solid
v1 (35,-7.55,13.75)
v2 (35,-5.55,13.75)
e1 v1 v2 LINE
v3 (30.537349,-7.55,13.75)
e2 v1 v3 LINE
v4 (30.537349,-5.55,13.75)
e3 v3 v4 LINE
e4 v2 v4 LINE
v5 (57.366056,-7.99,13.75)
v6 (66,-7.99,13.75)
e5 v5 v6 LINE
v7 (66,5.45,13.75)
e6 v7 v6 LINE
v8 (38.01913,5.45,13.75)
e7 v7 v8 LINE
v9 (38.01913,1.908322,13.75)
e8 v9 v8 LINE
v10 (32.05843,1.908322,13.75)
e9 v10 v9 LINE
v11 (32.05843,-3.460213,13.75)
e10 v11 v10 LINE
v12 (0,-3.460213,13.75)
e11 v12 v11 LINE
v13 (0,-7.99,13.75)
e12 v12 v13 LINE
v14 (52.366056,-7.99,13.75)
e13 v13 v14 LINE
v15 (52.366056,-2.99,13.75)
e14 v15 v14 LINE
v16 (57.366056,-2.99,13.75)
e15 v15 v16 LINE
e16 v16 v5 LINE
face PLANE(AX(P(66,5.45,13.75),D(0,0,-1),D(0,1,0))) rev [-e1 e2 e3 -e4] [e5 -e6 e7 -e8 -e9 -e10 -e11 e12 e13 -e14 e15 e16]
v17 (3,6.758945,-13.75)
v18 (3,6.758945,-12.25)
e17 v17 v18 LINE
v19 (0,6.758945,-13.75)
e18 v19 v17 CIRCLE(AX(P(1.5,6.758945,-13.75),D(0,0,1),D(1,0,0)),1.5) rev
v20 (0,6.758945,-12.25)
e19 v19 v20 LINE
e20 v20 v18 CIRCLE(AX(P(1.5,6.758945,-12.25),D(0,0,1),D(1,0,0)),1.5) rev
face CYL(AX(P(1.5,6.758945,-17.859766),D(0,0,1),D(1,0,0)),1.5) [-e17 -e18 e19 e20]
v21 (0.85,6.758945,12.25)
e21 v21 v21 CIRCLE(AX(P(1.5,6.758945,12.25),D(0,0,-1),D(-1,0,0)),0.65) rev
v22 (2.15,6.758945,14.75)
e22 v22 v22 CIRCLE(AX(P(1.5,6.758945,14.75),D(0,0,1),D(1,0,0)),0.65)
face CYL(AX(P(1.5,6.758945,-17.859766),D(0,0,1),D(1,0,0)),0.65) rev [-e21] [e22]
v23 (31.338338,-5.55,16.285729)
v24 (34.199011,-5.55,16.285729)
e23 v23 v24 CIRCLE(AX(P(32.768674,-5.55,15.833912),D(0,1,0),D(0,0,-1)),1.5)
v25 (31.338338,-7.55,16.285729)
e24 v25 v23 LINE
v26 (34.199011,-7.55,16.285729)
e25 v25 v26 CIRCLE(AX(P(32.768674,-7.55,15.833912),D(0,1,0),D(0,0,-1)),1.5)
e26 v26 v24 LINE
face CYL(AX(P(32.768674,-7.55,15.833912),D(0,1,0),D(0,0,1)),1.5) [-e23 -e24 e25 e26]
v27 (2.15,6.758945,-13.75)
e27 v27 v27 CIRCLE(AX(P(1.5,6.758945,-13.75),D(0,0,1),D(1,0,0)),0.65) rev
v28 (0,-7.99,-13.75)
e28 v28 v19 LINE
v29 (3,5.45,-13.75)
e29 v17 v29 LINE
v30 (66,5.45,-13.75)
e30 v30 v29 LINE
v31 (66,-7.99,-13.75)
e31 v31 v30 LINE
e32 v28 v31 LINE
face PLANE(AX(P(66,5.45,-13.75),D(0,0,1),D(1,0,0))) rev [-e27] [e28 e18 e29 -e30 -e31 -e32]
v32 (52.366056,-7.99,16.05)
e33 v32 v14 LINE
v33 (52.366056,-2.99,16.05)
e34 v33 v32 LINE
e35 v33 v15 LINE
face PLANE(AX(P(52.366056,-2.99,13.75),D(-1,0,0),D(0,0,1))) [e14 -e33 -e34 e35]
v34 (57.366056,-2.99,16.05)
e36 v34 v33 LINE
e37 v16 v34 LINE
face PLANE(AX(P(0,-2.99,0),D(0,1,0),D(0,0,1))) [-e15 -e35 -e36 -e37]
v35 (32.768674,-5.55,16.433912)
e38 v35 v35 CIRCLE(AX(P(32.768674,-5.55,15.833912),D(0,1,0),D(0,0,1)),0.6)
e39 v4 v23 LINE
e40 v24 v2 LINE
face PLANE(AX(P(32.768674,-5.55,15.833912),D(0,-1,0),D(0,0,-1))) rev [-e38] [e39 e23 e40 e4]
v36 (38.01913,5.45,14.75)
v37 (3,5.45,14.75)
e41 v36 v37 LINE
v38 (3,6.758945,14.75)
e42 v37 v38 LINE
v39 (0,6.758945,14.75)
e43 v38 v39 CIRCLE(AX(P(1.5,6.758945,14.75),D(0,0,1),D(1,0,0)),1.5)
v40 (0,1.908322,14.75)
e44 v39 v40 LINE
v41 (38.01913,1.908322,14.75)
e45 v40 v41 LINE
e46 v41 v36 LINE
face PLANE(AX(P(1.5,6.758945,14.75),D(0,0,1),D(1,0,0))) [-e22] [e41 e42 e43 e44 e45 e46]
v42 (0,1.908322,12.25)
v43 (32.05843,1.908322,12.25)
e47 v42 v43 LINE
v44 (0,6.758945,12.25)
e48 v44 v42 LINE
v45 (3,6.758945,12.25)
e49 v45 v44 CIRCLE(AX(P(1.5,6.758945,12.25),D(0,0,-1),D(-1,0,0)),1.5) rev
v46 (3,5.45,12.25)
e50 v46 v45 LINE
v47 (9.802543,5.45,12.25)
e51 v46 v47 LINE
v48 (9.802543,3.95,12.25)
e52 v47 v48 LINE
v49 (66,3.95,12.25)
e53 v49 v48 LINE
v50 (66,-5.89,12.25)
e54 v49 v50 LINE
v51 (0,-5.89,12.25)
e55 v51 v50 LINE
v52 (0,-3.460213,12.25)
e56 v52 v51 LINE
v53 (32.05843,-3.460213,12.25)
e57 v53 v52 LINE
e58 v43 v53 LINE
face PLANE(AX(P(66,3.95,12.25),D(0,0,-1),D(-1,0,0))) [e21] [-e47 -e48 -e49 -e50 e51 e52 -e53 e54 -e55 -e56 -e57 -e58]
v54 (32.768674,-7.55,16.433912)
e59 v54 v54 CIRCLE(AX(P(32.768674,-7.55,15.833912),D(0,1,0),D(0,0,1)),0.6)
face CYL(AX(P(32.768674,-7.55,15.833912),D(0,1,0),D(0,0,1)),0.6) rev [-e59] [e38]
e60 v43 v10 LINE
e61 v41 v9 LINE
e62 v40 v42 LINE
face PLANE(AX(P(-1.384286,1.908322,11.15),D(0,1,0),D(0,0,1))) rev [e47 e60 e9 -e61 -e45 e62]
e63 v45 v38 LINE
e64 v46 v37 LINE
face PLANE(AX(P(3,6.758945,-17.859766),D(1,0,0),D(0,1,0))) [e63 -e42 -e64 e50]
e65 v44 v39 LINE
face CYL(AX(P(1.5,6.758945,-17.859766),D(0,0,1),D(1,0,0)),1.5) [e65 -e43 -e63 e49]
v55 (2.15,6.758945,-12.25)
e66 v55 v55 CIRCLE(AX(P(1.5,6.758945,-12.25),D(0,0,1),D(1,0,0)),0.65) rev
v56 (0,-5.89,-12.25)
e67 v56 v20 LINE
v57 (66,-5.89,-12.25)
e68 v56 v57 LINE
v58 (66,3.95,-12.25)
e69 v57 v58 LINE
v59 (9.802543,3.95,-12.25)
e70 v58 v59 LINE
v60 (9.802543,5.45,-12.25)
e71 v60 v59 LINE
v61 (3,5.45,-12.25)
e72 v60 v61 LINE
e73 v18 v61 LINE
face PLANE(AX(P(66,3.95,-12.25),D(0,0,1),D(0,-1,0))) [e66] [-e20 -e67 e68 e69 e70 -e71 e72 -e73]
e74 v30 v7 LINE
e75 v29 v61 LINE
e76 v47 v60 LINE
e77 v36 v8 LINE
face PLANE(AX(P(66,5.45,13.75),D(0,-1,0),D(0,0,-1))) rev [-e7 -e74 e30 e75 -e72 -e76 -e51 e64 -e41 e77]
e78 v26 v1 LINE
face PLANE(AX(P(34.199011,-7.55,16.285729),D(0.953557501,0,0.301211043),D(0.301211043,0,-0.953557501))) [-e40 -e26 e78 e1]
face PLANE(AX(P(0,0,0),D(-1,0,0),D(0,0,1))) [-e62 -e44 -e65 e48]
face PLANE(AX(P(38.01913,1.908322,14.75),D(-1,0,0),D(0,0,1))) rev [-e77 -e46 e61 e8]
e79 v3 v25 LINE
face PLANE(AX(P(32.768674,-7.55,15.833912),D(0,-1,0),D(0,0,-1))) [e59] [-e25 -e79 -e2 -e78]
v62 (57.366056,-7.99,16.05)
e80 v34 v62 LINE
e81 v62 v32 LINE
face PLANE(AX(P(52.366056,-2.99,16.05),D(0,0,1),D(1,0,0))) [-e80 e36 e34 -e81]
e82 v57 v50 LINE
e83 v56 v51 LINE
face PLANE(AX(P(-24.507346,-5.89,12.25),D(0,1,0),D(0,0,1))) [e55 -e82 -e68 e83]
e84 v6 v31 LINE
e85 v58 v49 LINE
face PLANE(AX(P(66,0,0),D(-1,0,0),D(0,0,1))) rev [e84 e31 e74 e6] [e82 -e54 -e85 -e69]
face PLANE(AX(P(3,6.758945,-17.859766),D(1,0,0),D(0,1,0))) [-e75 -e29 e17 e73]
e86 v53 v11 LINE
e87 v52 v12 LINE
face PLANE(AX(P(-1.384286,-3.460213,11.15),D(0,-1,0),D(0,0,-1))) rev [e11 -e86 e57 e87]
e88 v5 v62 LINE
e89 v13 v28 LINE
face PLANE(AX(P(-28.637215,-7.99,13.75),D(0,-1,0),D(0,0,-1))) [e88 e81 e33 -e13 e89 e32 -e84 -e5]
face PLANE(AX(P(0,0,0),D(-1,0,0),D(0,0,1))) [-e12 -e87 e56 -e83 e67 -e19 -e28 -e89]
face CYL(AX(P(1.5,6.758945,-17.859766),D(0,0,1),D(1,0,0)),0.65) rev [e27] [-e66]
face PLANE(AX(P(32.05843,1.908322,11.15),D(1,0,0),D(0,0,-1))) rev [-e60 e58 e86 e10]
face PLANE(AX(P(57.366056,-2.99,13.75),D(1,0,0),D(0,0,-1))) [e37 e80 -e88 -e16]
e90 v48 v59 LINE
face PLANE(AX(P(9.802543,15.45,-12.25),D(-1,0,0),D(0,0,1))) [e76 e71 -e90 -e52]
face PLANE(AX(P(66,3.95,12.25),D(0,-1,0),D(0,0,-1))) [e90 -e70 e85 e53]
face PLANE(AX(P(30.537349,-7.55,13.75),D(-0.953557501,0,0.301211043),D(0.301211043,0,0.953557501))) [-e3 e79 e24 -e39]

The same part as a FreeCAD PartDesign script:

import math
import FreeCAD as App
import Part
import Sketcher
from FreeCAD import Vector
Q = App.Units.Quantity


def add_polygon(sketch, points):
    """Adds a closed chain of lines whose ends are joined by coincident constraints."""
    first, n = sketch.GeometryCount, len(points)
    for a, b in zip(points, points[1:] + points[:1]):
        sketch.addGeometry(Part.LineSegment(App.Vector(*a, 0), App.Vector(*b, 0)), False)
    for i in range(n):
        sketch.addConstraint(Sketcher.Constraint("Coincident", first + i, 2, first + (i + 1) % n, 1))

doc = App.newDocument("Part")
body = doc.addObject("PartDesign::Body", "Body")

# Sketch on YZ plane
sketch1 = doc.addObject("Sketcher::SketchObject", "Sketch")
body.addObject(sketch1)
sketch1.AttachmentSupport = (doc.YZ_Plane, [""])
sketch1.MapMode = "FlatFace"
add_polygon(sketch1, [(5, 14), (-5, 14), (-5, -14), (5, -14)])  # lines 0-3
add_polygon(sketch1, [(-4, -12), (-4, 12), (4, 12), (4, -12)])  # lines 4-7
sketch1.addConstraint(Sketcher.Constraint("Horizontal", 0))
sketch1.addConstraint(Sketcher.Constraint("Vertical", 1))
sketch1.addConstraint(Sketcher.Constraint("Horizontal", 2))
sketch1.addConstraint(Sketcher.Constraint("Vertical", 3))
sketch1.addConstraint(Sketcher.Constraint("Vertical", 4))
sketch1.addConstraint(Sketcher.Constraint("Horizontal", 5))
sketch1.addConstraint(Sketcher.Constraint("Vertical", 6))
sketch1.addConstraint(Sketcher.Constraint("Horizontal", 7))
sketch1.addConstraint(Sketcher.Constraint("Symmetric", 0, 2, 2, 2, -1, 1))
sketch1.addConstraint(Sketcher.Constraint("Symmetric", 4, 2, 6, 2, -1, 1))
sketch1.addConstraint(Sketcher.Constraint("DistanceX", 0, 2, 0, 1, Q("10.9 mm")))
sketch1.addConstraint(Sketcher.Constraint("DistanceX", 5, 1, 5, 2, Q("7.9 mm")))
sketch1.addConstraint(Sketcher.Constraint("DistanceY", 1, 2, 1, 1, Q("27.5 mm")))
sketch1.addConstraint(Sketcher.Constraint("DistanceY", 4, 1, 4, 2, Q("24.5 mm")))
pad1 = doc.addObject("PartDesign::Pad", "Pad")
body.addObject(pad1)
pad1.Profile = sketch1
pad1.Length = 66

# Sketch on XY plane
sketch2 = doc.addObject("Sketcher::SketchObject", "Sketch001")
body.addObject(sketch2)
sketch2.AttachmentSupport = (doc.XY_Plane, [""])
sketch2.MapMode = "FlatFace"
sketch2.AttachmentOffset = App.Placement(Vector(0, 0, 13.75), App.Rotation())
add_polygon(sketch2, [(-3, 0), (-3, -11), (138, -11), (138, 0)])  # lines 0-3
sketch2.addConstraint(Sketcher.Constraint("Vertical", 0))
sketch2.addConstraint(Sketcher.Constraint("Horizontal", 1))
sketch2.addConstraint(Sketcher.Constraint("Vertical", 2))
sketch2.addConstraint(Sketcher.Constraint("Horizontal", 3))
sketch2.addConstraint(Sketcher.Constraint("PointOnObject", 2, 2, -1))
sketch2.addConstraint(Sketcher.Constraint("DistanceX", 1, 1, 1, 2, Q("141.586461 mm")))
sketch2.addConstraint(Sketcher.Constraint("DistanceY", 0, 2, 0, 1, Q("11.077242 mm")))
sketch2.addConstraint(Sketcher.Constraint("DistanceX", 0, 2, -1, 1, Q("3.213485 mm")))
pocket1 = doc.addObject("PartDesign::Pocket", "Pocket")
body.addObject(pocket1)
pocket1.Profile = sketch2
pocket1.Length = 50

# Sketch on XY plane
sketch3 = doc.addObject("Sketcher::SketchObject", "Sketch002")
body.addObject(sketch3)
sketch3.AttachmentSupport = (doc.XY_Plane, [""])
sketch3.MapMode = "FlatFace"
sketch3.AttachmentOffset = App.Placement(Vector(0, 0, 13.75), App.Rotation())
sketch3.addGeometry(Part.LineSegment(Vector(0, 6.8, 0), Vector(0, 5.5, 0)), False)
sketch3.addGeometry(Part.LineSegment(Vector(0, 5.5, 0), Vector(3, 5.5, 0)), False)
sketch3.addGeometry(Part.LineSegment(Vector(3, 5.5, 0), Vector(3, 6.8, 0)), False)
sketch3.addGeometry(Part.ArcOfCircle(Part.Circle(Vector(1.5, 6.8, 0), Vector(0, 0, 1), 1.5), math.radians(0), math.radians(180)), False)
sketch3.addGeometry(Part.Circle(Vector(1.5, 6.8, 0), Vector(0, 0, 1), 0.7), False)
sketch3.addConstraint(Sketcher.Constraint("Coincident", 0, 2, 1, 1))
sketch3.addConstraint(Sketcher.Constraint("Coincident", 1, 2, 2, 1))
sketch3.addConstraint(Sketcher.Constraint("Tangent", 2, 2, 3, 1))
sketch3.addConstraint(Sketcher.Constraint("Tangent", 3, 2, 0, 1))
sketch3.addConstraint(Sketcher.Constraint("Vertical", 0))
sketch3.addConstraint(Sketcher.Constraint("Horizontal", 1))
sketch3.addConstraint(Sketcher.Constraint("Vertical", 2))
sketch3.addConstraint(Sketcher.Constraint("Coincident", 4, 3, 3, 3))
sketch3.addConstraint(Sketcher.Constraint("PointOnObject", 0, 2, -2))
sketch3.addConstraint(Sketcher.Constraint("Diameter", 4, Q("1.3 mm")))
sketch3.addConstraint(Sketcher.Constraint("Radius", 3, Q("1.5 mm")))
sketch3.addConstraint(Sketcher.Constraint("DistanceY", -1, 1, 0, 2, Q("5.45 mm")))
sketch3.addConstraint(Sketcher.Constraint("DistanceY", 0, 2, 0, 1, Q("1.308945 mm")))
pad2 = doc.addObject("PartDesign::Pad", "Pad001")
body.addObject(pad2)
pad2.Profile = sketch3
pad2.Length = 27.5
pad2.Reversed = True

# Sketch on XZ plane
sketch4 = doc.addObject("Sketcher::SketchObject", "Sketch003")
body.addObject(sketch4)
sketch4.AttachmentSupport = (doc.XZ_Plane, [""])
sketch4.MapMode = "FlatFace"
sketch4.AttachmentOffset = App.Placement(Vector(0, 0, -5.45), App.Rotation())
add_polygon(sketch4, [(-18, -12), (-18, 12), (10, 12), (10, -12)])  # lines 0-3
sketch4.addConstraint(Sketcher.Constraint("Vertical", 0))
sketch4.addConstraint(Sketcher.Constraint("Horizontal", 1))
sketch4.addConstraint(Sketcher.Constraint("Vertical", 2))
sketch4.addConstraint(Sketcher.Constraint("Horizontal", 3))
sketch4.addConstraint(Sketcher.Constraint("DistanceY", 0, 1, 0, 2, Q("24.5 mm")))
sketch4.addConstraint(Sketcher.Constraint("DistanceY", -1, 1, 0, 2, Q("12.25 mm")))
sketch4.addConstraint(Sketcher.Constraint("DistanceX", 1, 1, 1, 2, Q("27.947827 mm")))
sketch4.addConstraint(Sketcher.Constraint("DistanceX", 0, 2, -1, 1, Q("18.145284 mm")))
pocket2 = doc.addObject("PartDesign::Pocket", "Pocket001")
body.addObject(pocket2)
pocket2.Profile = sketch4
pocket2.Type = "ThroughAll"
pocket2.Midplane = True

# Sketch on YZ plane
sketch5 = doc.addObject("Sketcher::SketchObject", "Sketch004")
body.addObject(sketch5)
sketch5.AttachmentSupport = (doc.YZ_Plane, [""])
sketch5.MapMode = "FlatFace"
sketch5.AttachmentOffset = App.Placement(Vector(0, 0, 66), App.Rotation())
add_polygon(sketch5, [(-6.5, 12.2), (0, 12.2), (0, 13.8), (-8, 13.8), (-8, -13.8), (0, -13.8), (0, -12.2), (-6.5, -12.2)])  # lines 0-7
sketch5.addConstraint(Sketcher.Constraint("Horizontal", 0))
sketch5.addConstraint(Sketcher.Constraint("Vertical", 1))
sketch5.addConstraint(Sketcher.Constraint("Horizontal", 2))
sketch5.addConstraint(Sketcher.Constraint("Vertical", 3))
sketch5.addConstraint(Sketcher.Constraint("Horizontal", 4))
sketch5.addConstraint(Sketcher.Constraint("Vertical", 5))
sketch5.addConstraint(Sketcher.Constraint("Horizontal", 6))
sketch5.addConstraint(Sketcher.Constraint("Vertical", 7))
sketch5.addConstraint(Sketcher.Constraint("Symmetric", 1, 2, 4, 2, -1, 1))
sketch5.addConstraint(Sketcher.Constraint("Symmetric", 0, 2, 5, 2, -1))
sketch5.addConstraint(Sketcher.Constraint("DistanceY", 1, 1, 1, 2, Q("1.5 mm")))
sketch5.addConstraint(Sketcher.Constraint("DistanceY", 3, 2, 3, 1, Q("27.5 mm")))
sketch5.addConstraint(Sketcher.Constraint("DistanceX", 0, 1, 0, 2, Q("6.49 mm")))
sketch5.addConstraint(Sketcher.Constraint("DistanceX", 2, 2, 2, 1, Q("7.99 mm")))
pad3 = doc.addObject("PartDesign::Pad", "Pad002")
body.addObject(pad3)
pad3.Profile = sketch5
pad3.Length = 66
pad3.Reversed = True

# Sketch on XZ plane
sketch6 = doc.addObject("Sketcher::SketchObject", "Sketch005")
body.addObject(sketch6)
sketch6.AttachmentSupport = (doc.XZ_Plane, [""])
sketch6.MapMode = "FlatFace"
sketch6.AttachmentOffset = App.Placement(Vector(0, 0, 5.55), App.Rotation())
sketch6.addGeometry(Part.LineSegment(Vector(30.5, 13.8, 0), Vector(31.3, 16.3, 0)), False)
sketch6.addGeometry(Part.ArcOfCircle(Part.Circle(Vector(32.8, 15.8, 0), Vector(0, 0, 1), 1.5), math.radians(18), math.radians(162)), False)
sketch6.addGeometry(Part.LineSegment(Vector(34.2, 16.3, 0), Vector(35, 13.8, 0)), False)
sketch6.addGeometry(Part.LineSegment(Vector(35, 13.8, 0), Vector(30.5, 13.8, 0)), False)
sketch6.addGeometry(Part.Circle(Vector(32.8, 15.8, 0), Vector(0, 0, 1), 0.6), False)
sketch6.addConstraint(Sketcher.Constraint("Tangent", 0, 2, 1, 2))
sketch6.addConstraint(Sketcher.Constraint("Tangent", 1, 1, 2, 1))
sketch6.addConstraint(Sketcher.Constraint("Coincident", 2, 2, 3, 1))
sketch6.addConstraint(Sketcher.Constraint("Coincident", 3, 2, 0, 1))
sketch6.addConstraint(Sketcher.Constraint("Horizontal", 3))
sketch6.addConstraint(Sketcher.Constraint("Coincident", 4, 3, 1, 3))
sketch6.addConstraint(Sketcher.Constraint("Horizontal", 0, 2, 1, 1))
sketch6.addConstraint(Sketcher.Constraint("Diameter", 4, Q("1.2 mm")))
sketch6.addConstraint(Sketcher.Constraint("Radius", 1, Q("1.5 mm")))
sketch6.addConstraint(Sketcher.Constraint("DistanceX", -1, 1, 2, 2, Q("35 mm")))
sketch6.addConstraint(Sketcher.Constraint("DistanceY", -1, 1, 2, 2, Q("13.75 mm")))
sketch6.addConstraint(Sketcher.Constraint("DistanceX", 3, 2, 3, 1, Q("4.462651 mm")))
sketch6.addConstraint(Sketcher.Constraint("Distance", 0, Q("2.65923 mm")))
pad4 = doc.addObject("PartDesign::Pad", "Pad003")
body.addObject(pad4)
pad4.Profile = sketch6
pad4.Length = 2

# Sketch on XY plane
sketch7 = doc.addObject("Sketcher::SketchObject", "Sketch006")
body.addObject(sketch7)
sketch7.AttachmentSupport = (doc.XY_Plane, [""])
sketch7.MapMode = "FlatFace"
sketch7.AttachmentOffset = App.Placement(Vector(0, 0, 13.75), App.Rotation())
add_polygon(sketch7, [(-1, 2), (-1, -3), (32, -3), (32, 2)])  # lines 0-3
sketch7.addConstraint(Sketcher.Constraint("Vertical", 0))
sketch7.addConstraint(Sketcher.Constraint("Horizontal", 1))
sketch7.addConstraint(Sketcher.Constraint("Vertical", 2))
sketch7.addConstraint(Sketcher.Constraint("Horizontal", 3))
sketch7.addConstraint(Sketcher.Constraint("DistanceX", 1, 1, 1, 2, Q("33.442716 mm")))
sketch7.addConstraint(Sketcher.Constraint("DistanceY", 0, 2, 0, 1, Q("5.368535 mm")))
sketch7.addConstraint(Sketcher.Constraint("DistanceX", -1, 1, 1, 2, Q("32.05843 mm")))
sketch7.addConstraint(Sketcher.Constraint("DistanceY", 0, 2, -1, 1, Q("3.460213 mm")))
pocket3 = doc.addObject("PartDesign::Pocket", "Pocket002")
body.addObject(pocket3)
pocket3.Profile = sketch7
pocket3.Length = 2.6

# Sketch on XZ plane
sketch8 = doc.addObject("Sketcher::SketchObject", "Sketch007")
body.addObject(sketch8)
sketch8.AttachmentSupport = (doc.XZ_Plane, [""])
sketch8.MapMode = "FlatFace"
sketch8.AttachmentOffset = App.Placement(Vector(0, 0, 7.99), App.Rotation())
add_polygon(sketch8, [(52.4, 16.1), (52.4, 13.8), (57.4, 13.8), (57.4, 16.1)])  # lines 0-3
sketch8.addConstraint(Sketcher.Constraint("Vertical", 0))
sketch8.addConstraint(Sketcher.Constraint("Horizontal", 1))
sketch8.addConstraint(Sketcher.Constraint("Vertical", 2))
sketch8.addConstraint(Sketcher.Constraint("Horizontal", 3))
sketch8.addConstraint(Sketcher.Constraint("DistanceX", 1, 1, 1, 2, Q("5 mm")))
sketch8.addConstraint(Sketcher.Constraint("DistanceY", 0, 2, 0, 1, Q("2.3 mm")))
sketch8.addConstraint(Sketcher.Constraint("DistanceY", -1, 1, 0, 2, Q("13.75 mm")))
sketch8.addConstraint(Sketcher.Constraint("DistanceX", -1, 1, 0, 2, Q("52.366056 mm")))
pad5 = doc.addObject("PartDesign::Pad", "Pad004")
body.addObject(pad5)
pad5.Profile = sketch8
pad5.Length = 5
pad5.Reversed = True

# Sketch on XY plane
sketch9 = doc.addObject("Sketcher::SketchObject", "Sketch008")
body.addObject(sketch9)
sketch9.AttachmentSupport = (doc.XY_Plane, [""])
sketch9.MapMode = "FlatFace"
sketch9.AttachmentOffset = App.Placement(Vector(0, 0, 14.75), App.Rotation())
sketch9.addGeometry(Part.LineSegment(Vector(38, 1.9, 0), Vector(38, 5.5, 0)), False)
sketch9.addGeometry(Part.LineSegment(Vector(38, 5.5, 0), Vector(3, 5.5, 0)), False)
sketch9.addGeometry(Part.LineSegment(Vector(3, 5.5, 0), Vector(3, 6.8, 0)), False)
sketch9.addGeometry(Part.ArcOfCircle(Part.Circle(Vector(1.5, 6.8, 0), Vector(0, 0, 1), 1.5), math.radians(0), math.radians(180)), False)
sketch9.addGeometry(Part.LineSegment(Vector(0, 6.8, 0), Vector(0, 1.9, 0)), False)
sketch9.addGeometry(Part.LineSegment(Vector(0, 1.9, 0), Vector(38, 1.9, 0)), False)
sketch9.addGeometry(Part.Circle(Vector(1.5, 6.8, 0), Vector(0, 0, 1), 0.7), False)
sketch9.addConstraint(Sketcher.Constraint("Coincident", 0, 2, 1, 1))
sketch9.addConstraint(Sketcher.Constraint("Coincident", 1, 2, 2, 1))
sketch9.addConstraint(Sketcher.Constraint("Tangent", 2, 2, 3, 1))
sketch9.addConstraint(Sketcher.Constraint("Tangent", 3, 2, 4, 1))
sketch9.addConstraint(Sketcher.Constraint("Coincident", 4, 2, 5, 1))
sketch9.addConstraint(Sketcher.Constraint("Coincident", 5, 2, 0, 1))
sketch9.addConstraint(Sketcher.Constraint("Vertical", 0))
sketch9.addConstraint(Sketcher.Constraint("Horizontal", 1))
sketch9.addConstraint(Sketcher.Constraint("Vertical", 2))
sketch9.addConstraint(Sketcher.Constraint("Vertical", 4))
sketch9.addConstraint(Sketcher.Constraint("Horizontal", 5))
sketch9.addConstraint(Sketcher.Constraint("Coincident", 6, 3, 3, 3))
sketch9.addConstraint(Sketcher.Constraint("PointOnObject", 3, 2, -2))
sketch9.addConstraint(Sketcher.Constraint("Diameter", 6, Q("1.3 mm")))
sketch9.addConstraint(Sketcher.Constraint("Radius", 3, Q("1.5 mm")))
sketch9.addConstraint(Sketcher.Constraint("DistanceY", -1, 1, 0, 2, Q("5.45 mm")))
sketch9.addConstraint(Sketcher.Constraint("DistanceX", 1, 2, 1, 1, Q("35.01913 mm")))
sketch9.addConstraint(Sketcher.Constraint("DistanceY", 0, 1, 0, 2, Q("3.541678 mm")))
sketch9.addConstraint(Sketcher.Constraint("DistanceY", 2, 1, 2, 2, Q("1.308945 mm")))
pad6 = doc.addObject("PartDesign::Pad", "Pad005")
body.addObject(pad6)
pad6.Profile = sketch9
pad6.Length = 1
pad6.Reversed = True

# Sketch on YZ plane
sketch10 = doc.addObject("Sketcher::SketchObject", "Sketch009")
body.addObject(sketch10)
sketch10.AttachmentSupport = (doc.YZ_Plane, [""])
sketch10.MapMode = "FlatFace"
sketch10.AttachmentOffset = App.Placement(Vector(0, 0, 66), App.Rotation())
add_polygon(sketch10, [(-5.9, 12.2), (-6.5, 12.2), (-6.5, -12.2), (-5.9, -12.2)])  # lines 0-3
sketch10.addConstraint(Sketcher.Constraint("Horizontal", 0))
sketch10.addConstraint(Sketcher.Constraint("Vertical", 1))
sketch10.addConstraint(Sketcher.Constraint("Horizontal", 2))
sketch10.addConstraint(Sketcher.Constraint("Vertical", 3))
sketch10.addConstraint(Sketcher.Constraint("DistanceX", 0, 2, 0, 1, Q("0.6 mm")))
sketch10.addConstraint(Sketcher.Constraint("DistanceY", 1, 2, 1, 1, Q("24.5 mm")))
sketch10.addConstraint(Sketcher.Constraint("DistanceX", 0, 2, -1, 1, Q("6.49 mm")))
sketch10.addConstraint(Sketcher.Constraint("DistanceY", -1, 1, 0, 2, Q("12.25 mm")))
pad7 = doc.addObject("PartDesign::Pad", "Pad006")
body.addObject(pad7)
pad7.Profile = sketch10
pad7.Length = 66
pad7.Reversed = True

doc.recompute()
